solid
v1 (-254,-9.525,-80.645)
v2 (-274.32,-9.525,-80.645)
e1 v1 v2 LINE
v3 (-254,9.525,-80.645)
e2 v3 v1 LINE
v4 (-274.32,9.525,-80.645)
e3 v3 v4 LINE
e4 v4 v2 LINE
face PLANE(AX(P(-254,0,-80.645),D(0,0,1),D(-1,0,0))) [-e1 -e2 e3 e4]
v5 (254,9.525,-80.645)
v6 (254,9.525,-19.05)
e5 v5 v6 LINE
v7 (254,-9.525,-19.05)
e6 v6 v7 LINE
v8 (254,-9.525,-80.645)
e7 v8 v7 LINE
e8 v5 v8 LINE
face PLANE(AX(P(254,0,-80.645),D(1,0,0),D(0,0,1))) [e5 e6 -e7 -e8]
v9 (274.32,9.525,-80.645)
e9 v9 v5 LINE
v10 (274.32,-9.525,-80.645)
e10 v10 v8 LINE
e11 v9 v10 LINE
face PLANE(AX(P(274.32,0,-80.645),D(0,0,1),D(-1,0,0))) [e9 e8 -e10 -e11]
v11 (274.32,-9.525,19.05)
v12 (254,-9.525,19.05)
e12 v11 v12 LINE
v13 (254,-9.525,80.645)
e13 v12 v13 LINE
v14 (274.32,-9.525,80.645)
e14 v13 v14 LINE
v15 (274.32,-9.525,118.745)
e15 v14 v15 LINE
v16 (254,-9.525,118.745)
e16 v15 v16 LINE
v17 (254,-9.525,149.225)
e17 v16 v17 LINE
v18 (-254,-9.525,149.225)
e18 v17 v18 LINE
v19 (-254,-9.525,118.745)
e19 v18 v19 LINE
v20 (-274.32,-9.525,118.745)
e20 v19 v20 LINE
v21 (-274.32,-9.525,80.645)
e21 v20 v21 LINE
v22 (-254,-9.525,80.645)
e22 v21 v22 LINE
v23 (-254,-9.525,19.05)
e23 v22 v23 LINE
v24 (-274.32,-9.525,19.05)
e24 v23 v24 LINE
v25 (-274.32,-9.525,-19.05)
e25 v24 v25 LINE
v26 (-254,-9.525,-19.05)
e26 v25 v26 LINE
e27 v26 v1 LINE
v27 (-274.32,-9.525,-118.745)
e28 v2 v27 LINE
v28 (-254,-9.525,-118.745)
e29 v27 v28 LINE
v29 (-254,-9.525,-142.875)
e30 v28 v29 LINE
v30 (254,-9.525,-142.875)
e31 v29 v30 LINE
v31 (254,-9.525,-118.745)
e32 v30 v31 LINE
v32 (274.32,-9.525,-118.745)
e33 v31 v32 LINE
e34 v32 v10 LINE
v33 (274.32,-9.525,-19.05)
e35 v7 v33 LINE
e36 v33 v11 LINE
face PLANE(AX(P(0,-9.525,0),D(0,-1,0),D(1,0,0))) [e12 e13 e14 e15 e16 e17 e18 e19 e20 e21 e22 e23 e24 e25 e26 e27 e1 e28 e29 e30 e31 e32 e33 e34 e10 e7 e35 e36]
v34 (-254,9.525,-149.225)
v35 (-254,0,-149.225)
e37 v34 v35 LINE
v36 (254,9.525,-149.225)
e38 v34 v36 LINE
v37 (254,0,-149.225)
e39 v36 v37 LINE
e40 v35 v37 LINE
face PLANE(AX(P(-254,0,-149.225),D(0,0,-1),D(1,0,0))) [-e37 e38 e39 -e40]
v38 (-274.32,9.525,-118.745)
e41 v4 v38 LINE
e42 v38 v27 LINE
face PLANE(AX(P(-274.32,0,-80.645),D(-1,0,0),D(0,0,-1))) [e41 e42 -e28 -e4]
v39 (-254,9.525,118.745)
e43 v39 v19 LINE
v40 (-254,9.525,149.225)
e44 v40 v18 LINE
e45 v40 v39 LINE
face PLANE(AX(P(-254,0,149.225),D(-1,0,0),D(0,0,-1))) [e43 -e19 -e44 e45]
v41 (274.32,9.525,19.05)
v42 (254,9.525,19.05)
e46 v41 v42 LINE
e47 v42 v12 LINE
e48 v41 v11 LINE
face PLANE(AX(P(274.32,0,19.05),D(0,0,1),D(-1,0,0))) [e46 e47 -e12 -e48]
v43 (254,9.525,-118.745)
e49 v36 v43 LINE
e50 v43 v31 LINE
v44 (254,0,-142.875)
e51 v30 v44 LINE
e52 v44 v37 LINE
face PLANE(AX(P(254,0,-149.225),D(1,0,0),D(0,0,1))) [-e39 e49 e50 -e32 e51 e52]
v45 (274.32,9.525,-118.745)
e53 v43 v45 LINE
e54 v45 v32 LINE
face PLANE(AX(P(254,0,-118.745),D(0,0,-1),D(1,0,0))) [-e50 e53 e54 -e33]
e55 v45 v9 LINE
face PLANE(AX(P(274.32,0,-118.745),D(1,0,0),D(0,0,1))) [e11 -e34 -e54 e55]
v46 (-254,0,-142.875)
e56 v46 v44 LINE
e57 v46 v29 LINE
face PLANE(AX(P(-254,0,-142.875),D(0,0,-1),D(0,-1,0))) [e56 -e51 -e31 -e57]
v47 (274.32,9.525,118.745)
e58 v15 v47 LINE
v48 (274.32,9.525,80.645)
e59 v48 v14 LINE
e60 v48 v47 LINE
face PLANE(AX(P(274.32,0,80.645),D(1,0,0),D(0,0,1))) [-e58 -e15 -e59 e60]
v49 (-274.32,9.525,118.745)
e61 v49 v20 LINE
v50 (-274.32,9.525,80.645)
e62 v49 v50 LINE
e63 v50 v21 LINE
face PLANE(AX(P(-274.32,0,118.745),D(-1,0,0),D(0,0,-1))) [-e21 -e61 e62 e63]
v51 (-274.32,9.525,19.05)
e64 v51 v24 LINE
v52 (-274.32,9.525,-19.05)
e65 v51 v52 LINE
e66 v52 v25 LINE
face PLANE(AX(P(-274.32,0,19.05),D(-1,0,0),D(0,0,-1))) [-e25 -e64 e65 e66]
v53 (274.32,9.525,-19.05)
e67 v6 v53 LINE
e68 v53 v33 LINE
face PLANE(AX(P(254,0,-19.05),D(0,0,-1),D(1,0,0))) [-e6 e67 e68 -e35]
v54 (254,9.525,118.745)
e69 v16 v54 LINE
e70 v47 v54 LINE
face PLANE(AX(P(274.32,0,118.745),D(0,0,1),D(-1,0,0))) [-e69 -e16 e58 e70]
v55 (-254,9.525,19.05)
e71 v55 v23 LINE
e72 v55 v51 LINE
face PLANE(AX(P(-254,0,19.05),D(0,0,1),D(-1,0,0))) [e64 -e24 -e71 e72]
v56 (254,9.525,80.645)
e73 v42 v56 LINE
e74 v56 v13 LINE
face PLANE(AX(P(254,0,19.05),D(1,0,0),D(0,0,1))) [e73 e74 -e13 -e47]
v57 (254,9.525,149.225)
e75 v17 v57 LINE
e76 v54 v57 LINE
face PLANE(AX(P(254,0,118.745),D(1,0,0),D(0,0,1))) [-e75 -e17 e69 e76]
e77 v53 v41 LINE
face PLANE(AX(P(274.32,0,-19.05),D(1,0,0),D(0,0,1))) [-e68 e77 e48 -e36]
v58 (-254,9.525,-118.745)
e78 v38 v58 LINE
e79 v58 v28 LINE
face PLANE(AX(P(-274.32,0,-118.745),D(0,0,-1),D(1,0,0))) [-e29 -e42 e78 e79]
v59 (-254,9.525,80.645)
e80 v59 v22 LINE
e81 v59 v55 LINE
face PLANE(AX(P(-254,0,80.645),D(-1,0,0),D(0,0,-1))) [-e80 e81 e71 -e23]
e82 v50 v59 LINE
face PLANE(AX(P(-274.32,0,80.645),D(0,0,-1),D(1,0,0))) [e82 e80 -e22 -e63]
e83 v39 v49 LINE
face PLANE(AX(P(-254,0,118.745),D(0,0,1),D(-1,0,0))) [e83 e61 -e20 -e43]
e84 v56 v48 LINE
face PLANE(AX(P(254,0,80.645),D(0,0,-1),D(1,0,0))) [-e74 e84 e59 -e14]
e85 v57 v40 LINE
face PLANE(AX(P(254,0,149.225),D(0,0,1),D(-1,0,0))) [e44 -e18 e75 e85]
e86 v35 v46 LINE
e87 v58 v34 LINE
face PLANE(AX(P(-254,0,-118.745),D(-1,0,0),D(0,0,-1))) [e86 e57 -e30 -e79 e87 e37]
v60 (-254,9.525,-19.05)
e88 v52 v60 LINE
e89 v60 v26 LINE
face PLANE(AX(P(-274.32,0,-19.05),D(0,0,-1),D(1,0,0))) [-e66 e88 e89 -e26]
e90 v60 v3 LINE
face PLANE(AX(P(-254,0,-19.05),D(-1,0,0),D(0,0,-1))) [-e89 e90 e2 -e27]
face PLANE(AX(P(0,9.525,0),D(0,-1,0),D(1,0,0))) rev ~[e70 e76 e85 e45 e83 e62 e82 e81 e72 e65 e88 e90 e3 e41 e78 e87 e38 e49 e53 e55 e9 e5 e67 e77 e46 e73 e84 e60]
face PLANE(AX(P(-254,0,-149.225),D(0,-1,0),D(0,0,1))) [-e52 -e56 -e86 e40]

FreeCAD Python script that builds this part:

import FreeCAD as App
import Part
import Sketcher
from FreeCAD import Vector
Q = App.Units.Quantity

doc = App.newDocument("Part")
body = doc.addObject("PartDesign::Body", "Body")

# Sketch on XZ plane
sketch1 = body.newObject("Sketcher::SketchObject", "Sketch")
sketch1.AttachmentSupport = (doc.getObject("XZ_Plane"), [""])
sketch1.MapMode = "FlatFace"
sketch1.addGeometry(Part.LineSegment(Vector(254, 149, 0), Vector(-254, 149, 0)), False)
sketch1.addGeometry(Part.LineSegment(Vector(-254, 149, 0), Vector(-254, 119, 0)), False)
sketch1.addGeometry(Part.LineSegment(Vector(-254, 119, 0), Vector(-274, 119, 0)), False)
sketch1.addGeometry(Part.LineSegment(Vector(-274, 119, 0), Vector(-274, 81, 0)), False)
sketch1.addGeometry(Part.LineSegment(Vector(-274, 81, 0), Vector(-254, 81, 0)), False)
sketch1.addGeometry(Part.LineSegment(Vector(-254, 81, 0), Vector(-254, 19, 0)), False)
sketch1.addGeometry(Part.LineSegment(Vector(-254, 19, 0), Vector(-274, 19, 0)), False)
sketch1.addGeometry(Part.LineSegment(Vector(-274, 19, 0), Vector(-274, -19, 0)), False)
sketch1.addGeometry(Part.LineSegment(Vector(-274, -19, 0), Vector(-254, -19, 0)), False)
sketch1.addGeometry(Part.LineSegment(Vector(-254, -19, 0), Vector(-254, -81, 0)), False)
sketch1.addGeometry(Part.LineSegment(Vector(-254, -81, 0), Vector(-274, -81, 0)), False)
sketch1.addGeometry(Part.LineSegment(Vector(-274, -81, 0), Vector(-274, -119, 0)), False)
sketch1.addGeometry(Part.LineSegment(Vector(-274, -119, 0), Vector(-254, -119, 0)), False)
sketch1.addGeometry(Part.LineSegment(Vector(-254, -119, 0), Vector(-254, -149, 0)), False)
sketch1.addGeometry(Part.LineSegment(Vector(-254, -149, 0), Vector(254, -149, 0)), False)
sketch1.addGeometry(Part.LineSegment(Vector(254, -149, 0), Vector(254, -119, 0)), False)
sketch1.addGeometry(Part.LineSegment(Vector(254, -119, 0), Vector(274, -119, 0)), False)
sketch1.addGeometry(Part.LineSegment(Vector(274, -119, 0), Vector(274, -81, 0)), False)
sketch1.addGeometry(Part.LineSegment(Vector(274, -81, 0), Vector(254, -81, 0)), False)
sketch1.addGeometry(Part.LineSegment(Vector(254, -81, 0), Vector(254, -19, 0)), False)
sketch1.addGeometry(Part.LineSegment(Vector(254, -19, 0), Vector(274, -19, 0)), False)
sketch1.addGeometry(Part.LineSegment(Vector(274, -19, 0), Vector(274, 19, 0)), False)
sketch1.addGeometry(Part.LineSegment(Vector(274, 19, 0), Vector(254, 19, 0)), False)
sketch1.addGeometry(Part.LineSegment(Vector(254, 19, 0), Vector(254, 81, 0)), False)
sketch1.addGeometry(Part.LineSegment(Vector(254, 81, 0), Vector(274, 81, 0)), False)
sketch1.addGeometry(Part.LineSegment(Vector(274, 81, 0), Vector(274, 119, 0)), False)
sketch1.addGeometry(Part.LineSegment(Vector(274, 119, 0), Vector(254, 119, 0)), False)
sketch1.addGeometry(Part.LineSegment(Vector(254, 119, 0), Vector(254, 149, 0)), False)
sketch1.addConstraint(Sketcher.Constraint("Coincident", 0, 2, 1, 1))
sketch1.addConstraint(Sketcher.Constraint("Coincident", 1, 2, 2, 1))
sketch1.addConstraint(Sketcher.Constraint("Coincident", 2, 2, 3, 1))
sketch1.addConstraint(Sketcher.Constraint("Coincident", 3, 2, 4, 1))
sketch1.addConstraint(Sketcher.Constraint("Coincident", 4, 2, 5, 1))
sketch1.addConstraint(Sketcher.Constraint("Coincident", 5, 2, 6, 1))
sketch1.addConstraint(Sketcher.Constraint("Coincident", 6, 2, 7, 1))
sketch1.addConstraint(Sketcher.Constraint("Coincident", 7, 2, 8, 1))
sketch1.addConstraint(Sketcher.Constraint("Coincident", 8, 2, 9, 1))
sketch1.addConstraint(Sketcher.Constraint("Coincident", 9, 2, 10, 1))
sketch1.addConstraint(Sketcher.Constraint("Coincident", 10, 2, 11, 1))
sketch1.addConstraint(Sketcher.Constraint("Coincident", 11, 2, 12, 1))
sketch1.addConstraint(Sketcher.Constraint("Coincident", 12, 2, 13, 1))
sketch1.addConstraint(Sketcher.Constraint("Coincident", 13, 2, 14, 1))
sketch1.addConstraint(Sketcher.Constraint("Coincident", 14, 2, 15, 1))
sketch1.addConstraint(Sketcher.Constraint("Coincident", 15, 2, 16, 1))
sketch1.addConstraint(Sketcher.Constraint("Coincident", 16, 2, 17, 1))
sketch1.addConstraint(Sketcher.Constraint("Coincident", 17, 2, 18, 1))
sketch1.addConstraint(Sketcher.Constraint("Coincident", 18, 2, 19, 1))
sketch1.addConstraint(Sketcher.Constraint("Coincident", 19, 2, 20, 1))
sketch1.addConstraint(Sketcher.Constraint("Coincident", 20, 2, 21, 1))
sketch1.addConstraint(Sketcher.Constraint("Coincident", 21, 2, 22, 1))
sketch1.addConstraint(Sketcher.Constraint("Coincident", 22, 2, 23, 1))
sketch1.addConstraint(Sketcher.Constraint("Coincident", 23, 2, 24, 1))
sketch1.addConstraint(Sketcher.Constraint("Coincident", 24, 2, 25, 1))
sketch1.addConstraint(Sketcher.Constraint("Coincident", 25, 2, 26, 1))
sketch1.addConstraint(Sketcher.Constraint("Coincident", 26, 2, 27, 1))
sketch1.addConstraint(Sketcher.Constraint("Coincident", 27, 2, 0, 1))
sketch1.addConstraint(Sketcher.Constraint("Horizontal", 0))
sketch1.addConstraint(Sketcher.Constraint("Vertical", 1))
sketch1.addConstraint(Sketcher.Constraint("Horizontal", 2))
sketch1.addConstraint(Sketcher.Constraint("Vertical", 3))
sketch1.addConstraint(Sketcher.Constraint("Horizontal", 4))
sketch1.addConstraint(Sketcher.Constraint("Vertical", 5))
sketch1.addConstraint(Sketcher.Constraint("Horizontal", 6))
sketch1.addConstraint(Sketcher.Constraint("Vertical", 7))
sketch1.addConstraint(Sketcher.Constraint("Horizontal", 8))
sketch1.addConstraint(Sketcher.Constraint("Vertical", 9))
sketch1.addConstraint(Sketcher.Constraint("Horizontal", 10))
sketch1.addConstraint(Sketcher.Constraint("Vertical", 11))
sketch1.addConstraint(Sketcher.Constraint("Horizontal", 12))
sketch1.addConstraint(Sketcher.Constraint("Vertical", 13))
sketch1.addConstraint(Sketcher.Constraint("Horizontal", 14))
sketch1.addConstraint(Sketcher.Constraint("Vertical", 15))
sketch1.addConstraint(Sketcher.Constraint("Horizontal", 16))
sketch1.addConstraint(Sketcher.Constraint("Vertical", 17))
sketch1.addConstraint(Sketcher.Constraint("Horizontal", 18))
sketch1.addConstraint(Sketcher.Constraint("Vertical", 19))
sketch1.addConstraint(Sketcher.Constraint("Horizontal", 20))
sketch1.addConstraint(Sketcher.Constraint("Vertical", 21))
sketch1.addConstraint(Sketcher.Constraint("Horizontal", 22))
sketch1.addConstraint(Sketcher.Constraint("Vertical", 23))
sketch1.addConstraint(Sketcher.Constraint("Horizontal", 24))
sketch1.addConstraint(Sketcher.Constraint("Vertical", 25))
sketch1.addConstraint(Sketcher.Constraint("Horizontal", 26))
sketch1.addConstraint(Sketcher.Constraint("Vertical", 27))
sketch1.addConstraint(Sketcher.Constraint("Symmetric", 0, 2, 14, 2, -1, 1))
sketch1.addConstraint(Sketcher.Constraint("Symmetric", 2, 2, 16, 2, -1, 1))
sketch1.addConstraint(Sketcher.Constraint("Symmetric", 4, 2, 18, 2, -1, 1))
sketch1.addConstraint(Sketcher.Constraint("Symmetric", 6, 2, 20, 2, -1, 1))
sketch1.addConstraint(Sketcher.Constraint("Symmetric", 8, 2, 22, 2, -1, 1))
sketch1.addConstraint(Sketcher.Constraint("Symmetric", 10, 2, 24, 2, -1, 1))
sketch1.addConstraint(Sketcher.Constraint("Symmetric", 12, 2, 26, 2, -1, 1))
sketch1.addConstraint(Sketcher.Constraint("Symmetric", 12, 2, 15, 2, -2))
sketch1.addConstraint(Sketcher.Constraint("Symmetric", 10, 2, 17, 2, -2))
sketch1.addConstraint(Sketcher.Constraint("Symmetric", 8, 2, 19, 2, -2))
sketch1.addConstraint(Sketcher.Constraint("Vertical", 1, 2, 4, 2))
sketch1.addConstraint(Sketcher.Constraint("Vertical", 3, 2, 6, 2))
sketch1.addConstraint(Sketcher.Constraint("Equal", 3, 7))
sketch1.addConstraint(Sketcher.Constraint("DistanceX", 0, 2, 0, 1, Q("20 in")))
sketch1.addConstraint(Sketcher.Constraint("DistanceX", 2, 2, 2, 1, Q("0.8 in")))
sketch1.addConstraint(Sketcher.Constraint("DistanceY", 1, 2, 1, 1, Q("1.2 in")))
sketch1.addConstraint(Sketcher.Constraint("DistanceY", 3, 2, 3, 1, Q("1.5 in")))
sketch1.addConstraint(Sketcher.Constraint("DistanceY", 5, 2, 5, 1, Q("2.425 in")))
pad1 = body.newObject("PartDesign::Pad", "Pad")
pad1.Profile = sketch1
pad1.Length = Q("0.75 in")
pad1.Midplane = True

# Sketch on YZ plane
sketch2 = body.newObject("Sketcher::SketchObject", "Sketch001")
sketch2.AttachmentSupport = (doc.getObject("YZ_Plane"), [""])
sketch2.MapMode = "FlatFace"
sketch2.AttachmentOffset = App.Placement(Vector(0, 0, -10 * 25.4), App.Rotation())
sketch2.addGeometry(Part.LineSegment(Vector(0, -143, 0), Vector(0, -149, 0)), False)
sketch2.addGeometry(Part.LineSegment(Vector(0, -149, 0), Vector(-10, -149, 0)), False)
sketch2.addGeometry(Part.LineSegment(Vector(-10, -149, 0), Vector(-10, -143, 0)), False)
sketch2.addGeometry(Part.LineSegment(Vector(-10, -143, 0), Vector(0, -143, 0)), False)
sketch2.addConstraint(Sketcher.Constraint("Coincident", 0, 2, 1, 1))
sketch2.addConstraint(Sketcher.Constraint("Coincident", 1, 2, 2, 1))
sketch2.addConstraint(Sketcher.Constraint("Coincident", 2, 2, 3, 1))
sketch2.addConstraint(Sketcher.Constraint("Coincident", 3, 2, 0, 1))
sketch2.addConstraint(Sketcher.Constraint("Vertical", 0))
sketch2.addConstraint(Sketcher.Constraint("Horizontal", 1))
sketch2.addConstraint(Sketcher.Constraint("Vertical", 2))
sketch2.addConstraint(Sketcher.Constraint("Horizontal", 3))
sketch2.addConstraint(Sketcher.Constraint("PointOnObject", 0, 2, -2))
sketch2.addConstraint(Sketcher.Constraint("DistanceY", 0, 2, 0, 1, Q("0.25 in")))
sketch2.addConstraint(Sketcher.Constraint("DistanceX", 1, 2, 1, 1, Q("0.375 in")))
sketch2.addConstraint(Sketcher.Constraint("DistanceY", 0, 2, -1, 1, Q("5.875 in")))
pocket1 = body.newObject("PartDesign::Pocket", "Pocket")
pocket1.Profile = sketch2
pocket1.Type = "ThroughAll"
pocket1.Reversed = True

doc.recompute()
